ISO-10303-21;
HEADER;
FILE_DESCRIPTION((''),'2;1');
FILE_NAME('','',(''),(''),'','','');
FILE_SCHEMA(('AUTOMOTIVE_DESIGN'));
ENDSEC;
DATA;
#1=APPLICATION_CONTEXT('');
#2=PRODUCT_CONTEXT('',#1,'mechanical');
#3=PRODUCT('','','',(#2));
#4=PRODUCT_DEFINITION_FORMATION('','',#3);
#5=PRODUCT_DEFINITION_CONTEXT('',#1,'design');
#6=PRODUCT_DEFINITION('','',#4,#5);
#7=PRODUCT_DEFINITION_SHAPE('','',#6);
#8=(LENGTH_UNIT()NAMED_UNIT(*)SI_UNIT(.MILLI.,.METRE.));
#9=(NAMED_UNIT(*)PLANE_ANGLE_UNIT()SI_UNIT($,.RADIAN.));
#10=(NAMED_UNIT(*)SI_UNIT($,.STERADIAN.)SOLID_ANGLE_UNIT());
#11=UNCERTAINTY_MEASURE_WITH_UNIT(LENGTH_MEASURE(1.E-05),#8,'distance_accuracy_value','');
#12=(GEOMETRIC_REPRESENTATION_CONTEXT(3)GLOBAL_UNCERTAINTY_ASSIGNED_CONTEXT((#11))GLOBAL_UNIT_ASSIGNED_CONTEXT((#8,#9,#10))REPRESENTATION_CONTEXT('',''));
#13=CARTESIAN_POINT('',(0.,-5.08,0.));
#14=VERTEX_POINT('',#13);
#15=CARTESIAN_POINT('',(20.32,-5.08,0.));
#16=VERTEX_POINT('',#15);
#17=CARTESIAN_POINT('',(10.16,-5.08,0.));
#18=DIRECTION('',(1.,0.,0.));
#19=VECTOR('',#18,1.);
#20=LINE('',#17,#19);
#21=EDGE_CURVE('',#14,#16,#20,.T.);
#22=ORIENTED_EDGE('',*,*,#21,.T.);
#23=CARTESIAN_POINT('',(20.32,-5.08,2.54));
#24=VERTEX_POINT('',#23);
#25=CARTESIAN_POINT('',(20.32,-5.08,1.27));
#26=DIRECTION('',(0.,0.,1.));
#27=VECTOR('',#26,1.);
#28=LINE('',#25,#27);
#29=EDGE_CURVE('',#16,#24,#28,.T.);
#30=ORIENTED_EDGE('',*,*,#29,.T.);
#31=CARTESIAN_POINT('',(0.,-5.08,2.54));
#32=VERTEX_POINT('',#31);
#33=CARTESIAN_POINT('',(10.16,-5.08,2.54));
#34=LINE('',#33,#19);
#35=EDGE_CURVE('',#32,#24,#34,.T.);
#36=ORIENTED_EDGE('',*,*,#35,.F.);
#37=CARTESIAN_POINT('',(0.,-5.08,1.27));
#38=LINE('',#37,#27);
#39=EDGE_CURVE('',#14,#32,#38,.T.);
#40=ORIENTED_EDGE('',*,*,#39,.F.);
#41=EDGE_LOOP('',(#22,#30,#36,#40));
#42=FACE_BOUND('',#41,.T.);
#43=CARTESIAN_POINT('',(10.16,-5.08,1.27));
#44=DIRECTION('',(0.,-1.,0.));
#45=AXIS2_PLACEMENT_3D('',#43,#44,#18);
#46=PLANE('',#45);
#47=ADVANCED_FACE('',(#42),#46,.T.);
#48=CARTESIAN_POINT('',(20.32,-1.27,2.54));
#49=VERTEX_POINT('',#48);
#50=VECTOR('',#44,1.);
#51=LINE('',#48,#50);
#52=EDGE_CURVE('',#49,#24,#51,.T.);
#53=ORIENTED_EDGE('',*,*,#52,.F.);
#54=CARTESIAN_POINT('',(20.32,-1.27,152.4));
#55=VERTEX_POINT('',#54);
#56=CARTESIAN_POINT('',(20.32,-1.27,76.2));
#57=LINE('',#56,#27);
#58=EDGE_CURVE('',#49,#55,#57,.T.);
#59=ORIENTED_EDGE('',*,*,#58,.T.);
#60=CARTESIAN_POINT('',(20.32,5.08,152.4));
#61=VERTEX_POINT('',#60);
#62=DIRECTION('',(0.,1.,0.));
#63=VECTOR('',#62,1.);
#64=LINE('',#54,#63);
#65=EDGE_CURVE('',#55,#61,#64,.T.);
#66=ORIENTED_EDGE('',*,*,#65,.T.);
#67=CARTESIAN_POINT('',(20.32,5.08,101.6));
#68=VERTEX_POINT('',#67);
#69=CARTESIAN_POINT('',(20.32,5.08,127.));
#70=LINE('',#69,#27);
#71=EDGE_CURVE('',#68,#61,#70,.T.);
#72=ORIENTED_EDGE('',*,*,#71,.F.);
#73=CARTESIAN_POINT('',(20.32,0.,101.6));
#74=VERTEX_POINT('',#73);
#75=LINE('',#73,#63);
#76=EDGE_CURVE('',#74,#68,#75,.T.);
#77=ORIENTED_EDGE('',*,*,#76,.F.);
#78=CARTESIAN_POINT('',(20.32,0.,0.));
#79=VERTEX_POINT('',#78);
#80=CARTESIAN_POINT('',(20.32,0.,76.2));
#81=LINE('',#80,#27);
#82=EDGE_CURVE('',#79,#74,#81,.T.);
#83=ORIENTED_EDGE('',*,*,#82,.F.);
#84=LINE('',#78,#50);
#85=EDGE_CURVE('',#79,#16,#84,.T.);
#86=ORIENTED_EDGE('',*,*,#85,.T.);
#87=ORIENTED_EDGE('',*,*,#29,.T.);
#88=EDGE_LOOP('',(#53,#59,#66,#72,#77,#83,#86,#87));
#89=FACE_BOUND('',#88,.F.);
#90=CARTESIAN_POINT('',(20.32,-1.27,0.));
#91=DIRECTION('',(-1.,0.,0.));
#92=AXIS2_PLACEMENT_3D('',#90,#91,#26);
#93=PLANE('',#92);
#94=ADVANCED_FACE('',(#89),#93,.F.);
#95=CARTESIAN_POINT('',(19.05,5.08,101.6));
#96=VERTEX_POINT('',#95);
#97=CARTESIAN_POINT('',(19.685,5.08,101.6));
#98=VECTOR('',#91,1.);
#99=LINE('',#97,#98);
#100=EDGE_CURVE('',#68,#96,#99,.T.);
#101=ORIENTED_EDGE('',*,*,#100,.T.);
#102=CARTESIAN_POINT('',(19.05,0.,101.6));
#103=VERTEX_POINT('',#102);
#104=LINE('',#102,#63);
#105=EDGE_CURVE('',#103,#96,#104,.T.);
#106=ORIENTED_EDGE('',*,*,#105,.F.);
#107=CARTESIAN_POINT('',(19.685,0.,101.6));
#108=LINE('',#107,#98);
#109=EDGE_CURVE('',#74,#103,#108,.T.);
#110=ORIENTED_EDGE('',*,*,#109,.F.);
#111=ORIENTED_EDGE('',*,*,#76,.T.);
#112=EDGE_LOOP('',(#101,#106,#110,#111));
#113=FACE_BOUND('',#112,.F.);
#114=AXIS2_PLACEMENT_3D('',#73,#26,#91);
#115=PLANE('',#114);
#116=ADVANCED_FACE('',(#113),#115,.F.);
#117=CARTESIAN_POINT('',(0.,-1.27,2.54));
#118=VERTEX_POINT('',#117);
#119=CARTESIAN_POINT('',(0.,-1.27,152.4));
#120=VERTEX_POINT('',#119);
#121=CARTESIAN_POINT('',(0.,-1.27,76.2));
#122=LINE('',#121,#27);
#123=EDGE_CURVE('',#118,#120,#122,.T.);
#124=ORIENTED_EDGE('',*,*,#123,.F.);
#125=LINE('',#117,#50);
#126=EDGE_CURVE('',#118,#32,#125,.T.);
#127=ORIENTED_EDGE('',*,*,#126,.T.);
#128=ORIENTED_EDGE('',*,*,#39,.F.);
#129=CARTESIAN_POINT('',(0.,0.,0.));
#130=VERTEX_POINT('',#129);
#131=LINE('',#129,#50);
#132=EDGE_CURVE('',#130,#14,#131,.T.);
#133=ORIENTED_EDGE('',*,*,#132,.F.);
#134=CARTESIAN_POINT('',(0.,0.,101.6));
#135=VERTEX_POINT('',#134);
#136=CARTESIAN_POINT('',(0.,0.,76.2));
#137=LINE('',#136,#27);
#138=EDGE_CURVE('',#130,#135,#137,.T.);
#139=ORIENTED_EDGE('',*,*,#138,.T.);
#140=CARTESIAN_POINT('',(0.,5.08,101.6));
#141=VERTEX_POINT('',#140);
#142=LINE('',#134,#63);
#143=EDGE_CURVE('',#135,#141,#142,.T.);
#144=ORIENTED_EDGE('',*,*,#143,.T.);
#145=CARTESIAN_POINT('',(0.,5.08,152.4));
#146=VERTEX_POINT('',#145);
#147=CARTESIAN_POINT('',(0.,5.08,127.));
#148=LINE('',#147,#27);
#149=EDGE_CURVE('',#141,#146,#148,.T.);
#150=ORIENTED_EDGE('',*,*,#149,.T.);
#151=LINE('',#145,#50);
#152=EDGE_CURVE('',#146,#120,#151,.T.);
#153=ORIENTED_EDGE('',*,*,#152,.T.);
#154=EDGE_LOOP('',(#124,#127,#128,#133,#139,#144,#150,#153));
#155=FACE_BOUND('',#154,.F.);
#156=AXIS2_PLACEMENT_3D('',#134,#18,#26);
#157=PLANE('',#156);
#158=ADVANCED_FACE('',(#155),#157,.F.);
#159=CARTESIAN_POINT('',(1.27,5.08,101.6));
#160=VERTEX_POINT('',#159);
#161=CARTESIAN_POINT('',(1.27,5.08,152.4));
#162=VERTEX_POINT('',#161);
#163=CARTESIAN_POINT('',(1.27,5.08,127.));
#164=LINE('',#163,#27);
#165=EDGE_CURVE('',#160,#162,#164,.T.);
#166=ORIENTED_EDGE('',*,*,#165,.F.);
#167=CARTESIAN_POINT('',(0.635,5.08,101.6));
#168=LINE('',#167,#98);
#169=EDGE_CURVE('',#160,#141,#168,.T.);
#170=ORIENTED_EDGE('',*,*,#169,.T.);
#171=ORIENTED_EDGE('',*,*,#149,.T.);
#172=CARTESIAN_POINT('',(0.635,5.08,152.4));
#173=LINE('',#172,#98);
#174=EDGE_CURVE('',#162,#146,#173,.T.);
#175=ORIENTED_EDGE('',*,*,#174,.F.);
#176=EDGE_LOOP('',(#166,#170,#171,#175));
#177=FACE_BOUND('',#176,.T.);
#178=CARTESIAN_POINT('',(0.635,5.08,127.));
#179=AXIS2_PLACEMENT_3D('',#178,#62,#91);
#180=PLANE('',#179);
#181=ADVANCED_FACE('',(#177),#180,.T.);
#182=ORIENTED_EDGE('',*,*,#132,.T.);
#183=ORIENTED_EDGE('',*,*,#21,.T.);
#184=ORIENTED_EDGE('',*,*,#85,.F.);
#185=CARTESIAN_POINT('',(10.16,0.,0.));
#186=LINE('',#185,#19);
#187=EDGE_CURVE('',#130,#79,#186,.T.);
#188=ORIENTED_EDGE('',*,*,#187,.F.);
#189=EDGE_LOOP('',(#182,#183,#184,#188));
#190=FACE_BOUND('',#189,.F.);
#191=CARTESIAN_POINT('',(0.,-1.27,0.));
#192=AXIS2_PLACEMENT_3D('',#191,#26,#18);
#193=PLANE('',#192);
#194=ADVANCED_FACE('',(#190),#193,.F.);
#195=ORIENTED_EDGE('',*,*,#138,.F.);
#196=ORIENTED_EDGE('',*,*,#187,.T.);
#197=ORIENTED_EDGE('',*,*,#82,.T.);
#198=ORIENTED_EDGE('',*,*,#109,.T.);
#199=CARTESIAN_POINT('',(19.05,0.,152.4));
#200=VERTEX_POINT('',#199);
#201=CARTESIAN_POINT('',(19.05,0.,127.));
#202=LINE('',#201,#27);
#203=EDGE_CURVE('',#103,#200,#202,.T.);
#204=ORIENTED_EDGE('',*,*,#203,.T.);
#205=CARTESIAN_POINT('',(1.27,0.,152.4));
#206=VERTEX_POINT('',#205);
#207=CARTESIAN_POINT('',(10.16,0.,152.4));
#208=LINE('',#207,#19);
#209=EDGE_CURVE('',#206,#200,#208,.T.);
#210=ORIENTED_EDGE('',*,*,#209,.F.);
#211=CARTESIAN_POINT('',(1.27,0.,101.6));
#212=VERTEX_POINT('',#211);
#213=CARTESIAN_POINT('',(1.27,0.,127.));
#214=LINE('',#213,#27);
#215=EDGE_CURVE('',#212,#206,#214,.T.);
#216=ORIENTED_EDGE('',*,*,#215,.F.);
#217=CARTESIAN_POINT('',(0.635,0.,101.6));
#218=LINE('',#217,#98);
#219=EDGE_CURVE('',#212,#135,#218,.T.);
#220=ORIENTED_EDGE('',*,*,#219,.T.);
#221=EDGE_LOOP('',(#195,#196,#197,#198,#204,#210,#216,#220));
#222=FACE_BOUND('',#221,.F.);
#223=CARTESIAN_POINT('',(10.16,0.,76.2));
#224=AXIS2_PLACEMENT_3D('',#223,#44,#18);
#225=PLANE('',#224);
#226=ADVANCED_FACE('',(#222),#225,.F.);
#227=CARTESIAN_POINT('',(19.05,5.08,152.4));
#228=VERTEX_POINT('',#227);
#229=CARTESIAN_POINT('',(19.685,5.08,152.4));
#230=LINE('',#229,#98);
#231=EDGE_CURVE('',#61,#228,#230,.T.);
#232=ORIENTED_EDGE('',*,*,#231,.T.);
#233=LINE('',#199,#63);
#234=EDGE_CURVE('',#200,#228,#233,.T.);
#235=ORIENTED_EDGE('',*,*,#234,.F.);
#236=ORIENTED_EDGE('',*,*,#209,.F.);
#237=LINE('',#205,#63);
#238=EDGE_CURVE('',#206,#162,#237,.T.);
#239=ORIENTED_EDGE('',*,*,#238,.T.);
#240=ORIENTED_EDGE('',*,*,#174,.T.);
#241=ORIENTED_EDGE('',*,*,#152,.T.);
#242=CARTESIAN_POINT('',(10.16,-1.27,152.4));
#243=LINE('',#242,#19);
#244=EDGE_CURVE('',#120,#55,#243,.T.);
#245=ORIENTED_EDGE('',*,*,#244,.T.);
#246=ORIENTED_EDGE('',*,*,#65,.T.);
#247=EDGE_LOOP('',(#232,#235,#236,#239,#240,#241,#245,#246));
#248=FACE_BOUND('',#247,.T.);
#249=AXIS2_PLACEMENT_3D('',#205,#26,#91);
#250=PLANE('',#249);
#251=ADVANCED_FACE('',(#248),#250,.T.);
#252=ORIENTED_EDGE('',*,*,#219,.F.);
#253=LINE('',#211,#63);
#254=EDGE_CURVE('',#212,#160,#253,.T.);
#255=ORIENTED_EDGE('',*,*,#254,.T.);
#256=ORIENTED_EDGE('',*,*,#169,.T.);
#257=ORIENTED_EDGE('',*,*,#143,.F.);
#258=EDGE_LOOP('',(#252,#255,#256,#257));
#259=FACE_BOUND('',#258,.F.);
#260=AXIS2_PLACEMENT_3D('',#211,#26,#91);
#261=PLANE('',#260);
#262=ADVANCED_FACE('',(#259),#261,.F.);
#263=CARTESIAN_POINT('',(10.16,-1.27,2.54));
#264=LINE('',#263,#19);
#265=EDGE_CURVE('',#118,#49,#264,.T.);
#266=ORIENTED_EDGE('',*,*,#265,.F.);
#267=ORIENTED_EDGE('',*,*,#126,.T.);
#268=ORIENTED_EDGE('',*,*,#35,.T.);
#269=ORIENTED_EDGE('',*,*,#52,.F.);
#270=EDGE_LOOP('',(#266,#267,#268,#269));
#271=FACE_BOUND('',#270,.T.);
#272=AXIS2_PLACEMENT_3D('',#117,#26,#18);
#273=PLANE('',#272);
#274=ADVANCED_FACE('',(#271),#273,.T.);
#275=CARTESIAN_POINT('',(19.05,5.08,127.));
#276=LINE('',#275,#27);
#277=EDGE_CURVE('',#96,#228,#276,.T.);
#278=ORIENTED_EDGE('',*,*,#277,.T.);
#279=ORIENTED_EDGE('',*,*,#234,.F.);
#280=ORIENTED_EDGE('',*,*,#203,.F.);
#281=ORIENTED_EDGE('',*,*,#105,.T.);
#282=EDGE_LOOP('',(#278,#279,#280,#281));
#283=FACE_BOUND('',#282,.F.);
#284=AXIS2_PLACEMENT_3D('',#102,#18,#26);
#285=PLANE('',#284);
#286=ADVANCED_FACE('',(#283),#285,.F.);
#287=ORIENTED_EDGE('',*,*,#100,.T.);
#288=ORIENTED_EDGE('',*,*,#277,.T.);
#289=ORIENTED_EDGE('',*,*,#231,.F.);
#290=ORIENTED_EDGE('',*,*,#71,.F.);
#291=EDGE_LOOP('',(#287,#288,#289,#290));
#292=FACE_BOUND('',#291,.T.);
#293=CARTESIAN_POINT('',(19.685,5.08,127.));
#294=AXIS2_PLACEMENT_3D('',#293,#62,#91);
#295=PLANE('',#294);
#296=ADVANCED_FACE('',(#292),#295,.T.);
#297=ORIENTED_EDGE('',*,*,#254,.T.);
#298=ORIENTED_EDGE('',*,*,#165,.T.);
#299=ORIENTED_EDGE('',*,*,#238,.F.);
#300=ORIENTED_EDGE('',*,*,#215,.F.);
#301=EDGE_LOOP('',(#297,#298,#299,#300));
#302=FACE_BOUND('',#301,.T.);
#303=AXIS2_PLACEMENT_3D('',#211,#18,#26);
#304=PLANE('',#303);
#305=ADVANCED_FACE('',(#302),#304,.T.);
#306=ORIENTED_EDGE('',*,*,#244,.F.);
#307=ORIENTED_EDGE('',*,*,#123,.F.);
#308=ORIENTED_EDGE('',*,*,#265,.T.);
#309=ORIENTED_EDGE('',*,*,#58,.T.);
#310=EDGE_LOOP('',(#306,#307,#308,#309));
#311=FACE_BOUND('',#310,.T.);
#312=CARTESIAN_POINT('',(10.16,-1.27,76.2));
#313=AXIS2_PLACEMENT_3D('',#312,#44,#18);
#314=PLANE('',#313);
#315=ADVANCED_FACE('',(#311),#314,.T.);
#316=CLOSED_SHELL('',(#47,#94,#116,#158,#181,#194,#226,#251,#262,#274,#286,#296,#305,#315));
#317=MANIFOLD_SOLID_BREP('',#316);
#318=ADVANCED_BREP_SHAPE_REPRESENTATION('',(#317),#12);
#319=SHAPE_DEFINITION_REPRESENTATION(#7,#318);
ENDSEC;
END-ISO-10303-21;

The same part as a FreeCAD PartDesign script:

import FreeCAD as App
import Part
import Sketcher
from FreeCAD import Vector
Q = App.Units.Quantity

doc = App.newDocument("Part")
body = doc.addObject("PartDesign::Body", "Body")

# Sketch on XZ plane
sketch1 = body.newObject("Sketcher::SketchObject", "Sketch")
sketch1.AttachmentSupport = (doc.getObject("XZ_Plane"), [""])
sketch1.MapMode = "FlatFace"
sketch1.addGeometry(Part.LineSegment(Vector(0, 152, 0), Vector(0, 0, 0)), False)
sketch1.addGeometry(Part.LineSegment(Vector(0, 0, 0), Vector(20, 0, 0)), False)
sketch1.addGeometry(Part.LineSegment(Vector(20, 0, 0), Vector(20, 152, 0)), False)
sketch1.addGeometry(Part.LineSegment(Vector(20, 152, 0), Vector(0, 152, 0)), False)
sketch1.addConstraint(Sketcher.Constraint("Coincident", 0, 2, 1, 1))
sketch1.addConstraint(Sketcher.Constraint("Coincident", 1, 2, 2, 1))
sketch1.addConstraint(Sketcher.Constraint("Coincident", 2, 2, 3, 1))
sketch1.addConstraint(Sketcher.Constraint("Coincident", 3, 2, 0, 1))
sketch1.addConstraint(Sketcher.Constraint("Vertical", 0))
sketch1.addConstraint(Sketcher.Constraint("Horizontal", 1))
sketch1.addConstraint(Sketcher.Constraint("Vertical", 2))
sketch1.addConstraint(Sketcher.Constraint("Horizontal", 3))
sketch1.addConstraint(Sketcher.Constraint("Coincident", 0, 2, -1, 1))
sketch1.addConstraint(Sketcher.Constraint("DistanceY", 0, 2, 0, 1, Q("6 in")))
sketch1.addConstraint(Sketcher.Constraint("DistanceX", 1, 1, 1, 2, Q("0.8 in")))
pad1 = body.newObject("PartDesign::Pad", "Pad")
pad1.Profile = sketch1
pad1.Length = Q("0.05 in")

# Sketch on XZ plane
sketch2 = body.newObject("Sketcher::SketchObject", "Sketch001")
sketch2.AttachmentSupport = (doc.getObject("XZ_Plane"), [""])
sketch2.MapMode = "FlatFace"
sketch2.AttachmentOffset = App.Placement(Vector(0, 0, 0.05 * 25.4), App.Rotation())
sketch2.addGeometry(Part.LineSegment(Vector(0, 2.5, 0), Vector(0, 0, 0)), False)
sketch2.addGeometry(Part.LineSegment(Vector(0, 0, 0), Vector(20.3, 0, 0)), False)
sketch2.addGeometry(Part.LineSegment(Vector(20.3, 0, 0), Vector(20.3, 2.5, 0)), False)
sketch2.addGeometry(Part.LineSegment(Vector(20.3, 2.5, 0), Vector(0, 2.5, 0)), False)
sketch2.addConstraint(Sketcher.Constraint("Coincident", 0, 2, 1, 1))
sketch2.addConstraint(Sketcher.Constraint("Coincident", 1, 2, 2, 1))
sketch2.addConstraint(Sketcher.Constraint("Coincident", 2, 2, 3, 1))
sketch2.addConstraint(Sketcher.Constraint("Coincident", 3, 2, 0, 1))
sketch2.addConstraint(Sketcher.Constraint("Vertical", 0))
sketch2.addConstraint(Sketcher.Constraint("Horizontal", 1))
sketch2.addConstraint(Sketcher.Constraint("Vertical", 2))
sketch2.addConstraint(Sketcher.Constraint("Horizontal", 3))
sketch2.addConstraint(Sketcher.Constraint("Coincident", 0, 2, -1, 1))
sketch2.addConstraint(Sketcher.Constraint("DistanceX", 1, 1, 1, 2, Q("0.8 in")))
sketch2.addConstraint(Sketcher.Constraint("DistanceY", 0, 2, 0, 1, Q("0.1 in")))
pad2 = body.newObject("PartDesign::Pad", "Pad001")
pad2.Profile = sketch2
pad2.Length = Q("0.15 in")

# Sketch on XZ plane
sketch3 = body.newObject("Sketcher::SketchObject", "Sketch002")
sketch3.AttachmentSupport = (doc.getObject("XZ_Plane"), [""])
sketch3.MapMode = "FlatFace"
sketch3.addGeometry(Part.LineSegment(Vector(1.3, 152.4, 0), Vector(1.3, 101.6, 0)), False)
sketch3.addGeometry(Part.LineSegment(Vector(1.3, 101.6, 0), Vector(0, 101.6, 0)), False)
sketch3.addGeometry(Part.LineSegment(Vector(0, 101.6, 0), Vector(0, 152.4, 0)), False)
sketch3.addGeometry(Part.LineSegment(Vector(0, 152.4, 0), Vector(1.3, 152.4, 0)), False)
sketch3.addGeometry(Part.LineSegment(Vector(20.3, 152.4, 0), Vector(20.3, 101.6, 0)), False)
sketch3.addGeometry(Part.LineSegment(Vector(20.3, 101.6, 0), Vector(19.1, 101.6, 0)), False)
sketch3.addGeometry(Part.LineSegment(Vector(19.1, 101.6, 0), Vector(19.1, 152.4, 0)), False)
sketch3.addGeometry(Part.LineSegment(Vector(19.1, 152.4, 0), Vector(20.3, 152.4, 0)), False)
sketch3.addConstraint(Sketcher.Constraint("Coincident", 0, 2, 1, 1))
sketch3.addConstraint(Sketcher.Constraint("Coincident", 1, 2, 2, 1))
sketch3.addConstraint(Sketcher.Constraint("Coincident", 2, 2, 3, 1))
sketch3.addConstraint(Sketcher.Constraint("Coincident", 3, 2, 0, 1))
sketch3.addConstraint(Sketcher.Constraint("Coincident", 4, 2, 5, 1))
sketch3.addConstraint(Sketcher.Constraint("Coincident", 5, 2, 6, 1))
sketch3.addConstraint(Sketcher.Constraint("Coincident", 6, 2, 7, 1))
sketch3.addConstraint(Sketcher.Constraint("Coincident", 7, 2, 4, 1))
sketch3.addConstraint(Sketcher.Constraint("Vertical", 0))
sketch3.addConstraint(Sketcher.Constraint("Horizontal", 1))
sketch3.addConstraint(Sketcher.Constraint("Vertical", 2))
sketch3.addConstraint(Sketcher.Constraint("Horizontal", 3))
sketch3.addConstraint(Sketcher.Constraint("Vertical", 4))
sketch3.addConstraint(Sketcher.Constraint("Horizontal", 5))
sketch3.addConstraint(Sketcher.Constraint("Vertical", 6))
sketch3.addConstraint(Sketcher.Constraint("Horizontal", 7))
sketch3.addConstraint(Sketcher.Constraint("PointOnObject", 1, 2, -2))
sketch3.addConstraint(Sketcher.Constraint("Horizontal", 1, 2, 4, 2))
sketch3.addConstraint(Sketcher.Constraint("Horizontal", 3, 2, 6, 2))
sketch3.addConstraint(Sketcher.Constraint("Equal", 3, 5))
sketch3.addConstraint(Sketcher.Constraint("DistanceY", 0, 2, 0, 1, Q("2 in")))
sketch3.addConstraint(Sketcher.Constraint("DistanceY", -1, 1, 0, 2, Q("4 in")))
sketch3.addConstraint(Sketcher.Constraint("DistanceX", 1, 2, 1, 1, Q("0.05 in")))
sketch3.addConstraint(Sketcher.Constraint("DistanceX", -1, 1, 4, 2, Q("0.8 in")))
pad3 = body.newObject("PartDesign::Pad", "Pad002")
pad3.Profile = sketch3
pad3.Length = Q("0.2 in")
pad3.Reversed = True

doc.recompute()
